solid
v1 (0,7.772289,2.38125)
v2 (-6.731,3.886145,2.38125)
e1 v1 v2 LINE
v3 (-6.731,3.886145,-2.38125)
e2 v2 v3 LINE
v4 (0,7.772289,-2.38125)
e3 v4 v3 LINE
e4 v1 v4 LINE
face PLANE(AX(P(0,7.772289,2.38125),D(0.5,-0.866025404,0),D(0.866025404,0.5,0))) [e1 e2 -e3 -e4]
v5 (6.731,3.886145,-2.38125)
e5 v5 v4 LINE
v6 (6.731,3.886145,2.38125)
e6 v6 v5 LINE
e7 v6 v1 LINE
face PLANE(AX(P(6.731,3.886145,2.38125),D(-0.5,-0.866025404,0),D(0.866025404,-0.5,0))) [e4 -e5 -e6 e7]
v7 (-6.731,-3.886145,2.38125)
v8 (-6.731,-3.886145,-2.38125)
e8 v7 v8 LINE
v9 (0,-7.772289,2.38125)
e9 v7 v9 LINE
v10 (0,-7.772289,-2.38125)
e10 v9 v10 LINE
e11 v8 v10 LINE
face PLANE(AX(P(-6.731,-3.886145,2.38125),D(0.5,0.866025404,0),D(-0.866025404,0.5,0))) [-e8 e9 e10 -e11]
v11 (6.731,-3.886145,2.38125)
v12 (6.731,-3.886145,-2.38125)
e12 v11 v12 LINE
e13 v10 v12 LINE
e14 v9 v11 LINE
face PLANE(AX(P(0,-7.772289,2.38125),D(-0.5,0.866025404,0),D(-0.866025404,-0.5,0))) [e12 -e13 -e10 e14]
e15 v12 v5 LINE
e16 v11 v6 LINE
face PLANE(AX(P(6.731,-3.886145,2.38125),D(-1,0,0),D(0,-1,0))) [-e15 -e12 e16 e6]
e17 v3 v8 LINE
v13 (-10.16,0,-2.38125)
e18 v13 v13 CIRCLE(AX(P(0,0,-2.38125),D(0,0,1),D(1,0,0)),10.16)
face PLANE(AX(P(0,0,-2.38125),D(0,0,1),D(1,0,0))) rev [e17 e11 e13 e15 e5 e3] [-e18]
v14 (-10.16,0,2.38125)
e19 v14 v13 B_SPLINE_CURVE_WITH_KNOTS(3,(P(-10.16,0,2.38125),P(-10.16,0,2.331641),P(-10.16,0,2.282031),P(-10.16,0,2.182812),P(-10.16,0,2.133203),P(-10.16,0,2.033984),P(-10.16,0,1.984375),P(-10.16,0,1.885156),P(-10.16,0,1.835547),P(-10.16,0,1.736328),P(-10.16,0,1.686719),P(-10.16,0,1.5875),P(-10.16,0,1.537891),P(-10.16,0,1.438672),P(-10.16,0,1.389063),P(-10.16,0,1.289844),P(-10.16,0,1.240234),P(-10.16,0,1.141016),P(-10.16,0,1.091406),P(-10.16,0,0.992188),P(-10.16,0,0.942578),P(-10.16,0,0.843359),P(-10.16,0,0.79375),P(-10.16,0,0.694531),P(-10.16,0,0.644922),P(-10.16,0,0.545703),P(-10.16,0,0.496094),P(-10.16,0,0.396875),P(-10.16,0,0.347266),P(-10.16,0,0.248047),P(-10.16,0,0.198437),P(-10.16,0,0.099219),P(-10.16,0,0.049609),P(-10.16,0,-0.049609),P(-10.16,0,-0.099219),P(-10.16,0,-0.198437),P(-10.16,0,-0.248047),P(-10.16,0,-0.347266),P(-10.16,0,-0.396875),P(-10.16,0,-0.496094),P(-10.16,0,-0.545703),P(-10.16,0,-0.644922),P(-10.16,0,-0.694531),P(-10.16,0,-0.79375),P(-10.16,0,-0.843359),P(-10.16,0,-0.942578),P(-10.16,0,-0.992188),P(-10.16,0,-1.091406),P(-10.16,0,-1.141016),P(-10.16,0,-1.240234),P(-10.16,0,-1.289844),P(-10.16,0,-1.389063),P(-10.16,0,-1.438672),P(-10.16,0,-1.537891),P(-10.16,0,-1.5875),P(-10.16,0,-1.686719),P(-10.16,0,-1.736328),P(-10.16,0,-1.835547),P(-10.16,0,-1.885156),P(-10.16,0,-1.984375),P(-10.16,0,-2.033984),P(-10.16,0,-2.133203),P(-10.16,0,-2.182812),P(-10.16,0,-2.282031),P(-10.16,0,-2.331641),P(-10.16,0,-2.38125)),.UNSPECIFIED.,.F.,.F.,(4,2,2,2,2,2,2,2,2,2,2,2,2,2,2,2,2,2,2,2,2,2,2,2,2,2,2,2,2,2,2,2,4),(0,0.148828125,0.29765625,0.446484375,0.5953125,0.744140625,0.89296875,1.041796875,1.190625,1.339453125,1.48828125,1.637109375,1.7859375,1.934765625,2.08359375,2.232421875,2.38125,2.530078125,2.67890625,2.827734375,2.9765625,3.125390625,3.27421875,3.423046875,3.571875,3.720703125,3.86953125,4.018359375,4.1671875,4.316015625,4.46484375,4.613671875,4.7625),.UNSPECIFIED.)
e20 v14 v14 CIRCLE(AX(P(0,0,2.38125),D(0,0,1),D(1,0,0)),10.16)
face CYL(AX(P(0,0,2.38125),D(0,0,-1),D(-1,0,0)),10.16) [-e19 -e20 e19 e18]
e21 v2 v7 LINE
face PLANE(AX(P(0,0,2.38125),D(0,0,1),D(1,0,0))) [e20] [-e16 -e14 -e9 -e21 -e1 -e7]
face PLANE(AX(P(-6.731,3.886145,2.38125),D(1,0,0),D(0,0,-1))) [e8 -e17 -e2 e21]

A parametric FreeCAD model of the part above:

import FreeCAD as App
import Part
import Sketcher

V = App.Vector
Q = App.Units.Quantity

doc = App.newDocument("Part")
params = doc.addObject("Spreadsheet::Sheet", "Params")
for row, (alias, value) in enumerate([
    ("sketch1_diameter", "0.8 in"),
    ("pad1_length", "0.1875 in"),
], start=1):
    params.set(f"A{row}", alias)
    params.set(f"B{row}", "=" + value)
    params.setAlias(f"B{row}", alias)

body = doc.addObject("PartDesign::Body", "Body")

sketch1 = body.newObject("Sketcher::SketchObject", "Sketch")
sketch1.AttachmentSupport = (doc.getObject("XY_Plane"), [""])
sketch1.MapMode = "FlatFace"
sketch1.addGeometry([
    Part.Circle(V(0, 0, 0), V(0, 0, 1), 10.16),
    Part.LineSegment(V(-6.731, 3.886145, 0), V(0, 7.772289, 0)),
    Part.LineSegment(V(0, 7.772289, 0), V(6.731, 3.886145, 0)),
    Part.LineSegment(V(6.731, 3.886145, 0), V(6.731, -3.886145, 0)),
    Part.LineSegment(V(6.731, -3.886145, 0), V(0, -7.772289, 0)),
    Part.LineSegment(V(0, -7.772289, 0), V(-6.731, -3.886145, 0)),
    Part.LineSegment(V(-6.731, -3.886145, 0), V(-6.731, 3.886145, 0)),
], False)
sketch1.addConstraint([
    Sketcher.Constraint("Coincident", 1, 2, 2, 1),
    Sketcher.Constraint("Coincident", 2, 2, 3, 1),
    Sketcher.Constraint("Coincident", 3, 2, 4, 1),
    Sketcher.Constraint("Coincident", 4, 2, 5, 1),
    Sketcher.Constraint("Coincident", 5, 2, 6, 1),
    Sketcher.Constraint("Coincident", 6, 2, 1, 1),
    Sketcher.Constraint("Vertical", 3),
    Sketcher.Constraint("Vertical", 6),
    Sketcher.Constraint("Coincident", 0, 3, -1, 1),
    Sketcher.Constraint("Symmetric", 1, 2, 4, 2, -1, 1),
    Sketcher.Constraint("Symmetric", 2, 2, 5, 2, -1, 1),
    Sketcher.Constraint("PointOnObject", 1, 2, -2),
    Sketcher.Constraint("Parallel", 1, 4),
    Sketcher.Constraint("Horizontal", 3, 2, 5, 2),
    Sketcher.Constraint("Diameter", 0, Q("0.8 in")),
    Sketcher.Constraint("Angle", 1, Q("30 deg")),
    Sketcher.Constraint("DistanceX", 5, 2, 3, 2, Q("0.53 in")),
    Sketcher.Constraint("DistanceY", 3, 2, 3, 1, 7.772289),
])
sketch1.setExpression("Constraints[14]", "Params.sketch1_diameter")
pad1 = body.newObject("PartDesign::Pad", "Pad")
pad1.Profile = sketch1
pad1.setExpression("Length", "Params.pad1_length")
pad1.Midplane = True

doc.recompute()
